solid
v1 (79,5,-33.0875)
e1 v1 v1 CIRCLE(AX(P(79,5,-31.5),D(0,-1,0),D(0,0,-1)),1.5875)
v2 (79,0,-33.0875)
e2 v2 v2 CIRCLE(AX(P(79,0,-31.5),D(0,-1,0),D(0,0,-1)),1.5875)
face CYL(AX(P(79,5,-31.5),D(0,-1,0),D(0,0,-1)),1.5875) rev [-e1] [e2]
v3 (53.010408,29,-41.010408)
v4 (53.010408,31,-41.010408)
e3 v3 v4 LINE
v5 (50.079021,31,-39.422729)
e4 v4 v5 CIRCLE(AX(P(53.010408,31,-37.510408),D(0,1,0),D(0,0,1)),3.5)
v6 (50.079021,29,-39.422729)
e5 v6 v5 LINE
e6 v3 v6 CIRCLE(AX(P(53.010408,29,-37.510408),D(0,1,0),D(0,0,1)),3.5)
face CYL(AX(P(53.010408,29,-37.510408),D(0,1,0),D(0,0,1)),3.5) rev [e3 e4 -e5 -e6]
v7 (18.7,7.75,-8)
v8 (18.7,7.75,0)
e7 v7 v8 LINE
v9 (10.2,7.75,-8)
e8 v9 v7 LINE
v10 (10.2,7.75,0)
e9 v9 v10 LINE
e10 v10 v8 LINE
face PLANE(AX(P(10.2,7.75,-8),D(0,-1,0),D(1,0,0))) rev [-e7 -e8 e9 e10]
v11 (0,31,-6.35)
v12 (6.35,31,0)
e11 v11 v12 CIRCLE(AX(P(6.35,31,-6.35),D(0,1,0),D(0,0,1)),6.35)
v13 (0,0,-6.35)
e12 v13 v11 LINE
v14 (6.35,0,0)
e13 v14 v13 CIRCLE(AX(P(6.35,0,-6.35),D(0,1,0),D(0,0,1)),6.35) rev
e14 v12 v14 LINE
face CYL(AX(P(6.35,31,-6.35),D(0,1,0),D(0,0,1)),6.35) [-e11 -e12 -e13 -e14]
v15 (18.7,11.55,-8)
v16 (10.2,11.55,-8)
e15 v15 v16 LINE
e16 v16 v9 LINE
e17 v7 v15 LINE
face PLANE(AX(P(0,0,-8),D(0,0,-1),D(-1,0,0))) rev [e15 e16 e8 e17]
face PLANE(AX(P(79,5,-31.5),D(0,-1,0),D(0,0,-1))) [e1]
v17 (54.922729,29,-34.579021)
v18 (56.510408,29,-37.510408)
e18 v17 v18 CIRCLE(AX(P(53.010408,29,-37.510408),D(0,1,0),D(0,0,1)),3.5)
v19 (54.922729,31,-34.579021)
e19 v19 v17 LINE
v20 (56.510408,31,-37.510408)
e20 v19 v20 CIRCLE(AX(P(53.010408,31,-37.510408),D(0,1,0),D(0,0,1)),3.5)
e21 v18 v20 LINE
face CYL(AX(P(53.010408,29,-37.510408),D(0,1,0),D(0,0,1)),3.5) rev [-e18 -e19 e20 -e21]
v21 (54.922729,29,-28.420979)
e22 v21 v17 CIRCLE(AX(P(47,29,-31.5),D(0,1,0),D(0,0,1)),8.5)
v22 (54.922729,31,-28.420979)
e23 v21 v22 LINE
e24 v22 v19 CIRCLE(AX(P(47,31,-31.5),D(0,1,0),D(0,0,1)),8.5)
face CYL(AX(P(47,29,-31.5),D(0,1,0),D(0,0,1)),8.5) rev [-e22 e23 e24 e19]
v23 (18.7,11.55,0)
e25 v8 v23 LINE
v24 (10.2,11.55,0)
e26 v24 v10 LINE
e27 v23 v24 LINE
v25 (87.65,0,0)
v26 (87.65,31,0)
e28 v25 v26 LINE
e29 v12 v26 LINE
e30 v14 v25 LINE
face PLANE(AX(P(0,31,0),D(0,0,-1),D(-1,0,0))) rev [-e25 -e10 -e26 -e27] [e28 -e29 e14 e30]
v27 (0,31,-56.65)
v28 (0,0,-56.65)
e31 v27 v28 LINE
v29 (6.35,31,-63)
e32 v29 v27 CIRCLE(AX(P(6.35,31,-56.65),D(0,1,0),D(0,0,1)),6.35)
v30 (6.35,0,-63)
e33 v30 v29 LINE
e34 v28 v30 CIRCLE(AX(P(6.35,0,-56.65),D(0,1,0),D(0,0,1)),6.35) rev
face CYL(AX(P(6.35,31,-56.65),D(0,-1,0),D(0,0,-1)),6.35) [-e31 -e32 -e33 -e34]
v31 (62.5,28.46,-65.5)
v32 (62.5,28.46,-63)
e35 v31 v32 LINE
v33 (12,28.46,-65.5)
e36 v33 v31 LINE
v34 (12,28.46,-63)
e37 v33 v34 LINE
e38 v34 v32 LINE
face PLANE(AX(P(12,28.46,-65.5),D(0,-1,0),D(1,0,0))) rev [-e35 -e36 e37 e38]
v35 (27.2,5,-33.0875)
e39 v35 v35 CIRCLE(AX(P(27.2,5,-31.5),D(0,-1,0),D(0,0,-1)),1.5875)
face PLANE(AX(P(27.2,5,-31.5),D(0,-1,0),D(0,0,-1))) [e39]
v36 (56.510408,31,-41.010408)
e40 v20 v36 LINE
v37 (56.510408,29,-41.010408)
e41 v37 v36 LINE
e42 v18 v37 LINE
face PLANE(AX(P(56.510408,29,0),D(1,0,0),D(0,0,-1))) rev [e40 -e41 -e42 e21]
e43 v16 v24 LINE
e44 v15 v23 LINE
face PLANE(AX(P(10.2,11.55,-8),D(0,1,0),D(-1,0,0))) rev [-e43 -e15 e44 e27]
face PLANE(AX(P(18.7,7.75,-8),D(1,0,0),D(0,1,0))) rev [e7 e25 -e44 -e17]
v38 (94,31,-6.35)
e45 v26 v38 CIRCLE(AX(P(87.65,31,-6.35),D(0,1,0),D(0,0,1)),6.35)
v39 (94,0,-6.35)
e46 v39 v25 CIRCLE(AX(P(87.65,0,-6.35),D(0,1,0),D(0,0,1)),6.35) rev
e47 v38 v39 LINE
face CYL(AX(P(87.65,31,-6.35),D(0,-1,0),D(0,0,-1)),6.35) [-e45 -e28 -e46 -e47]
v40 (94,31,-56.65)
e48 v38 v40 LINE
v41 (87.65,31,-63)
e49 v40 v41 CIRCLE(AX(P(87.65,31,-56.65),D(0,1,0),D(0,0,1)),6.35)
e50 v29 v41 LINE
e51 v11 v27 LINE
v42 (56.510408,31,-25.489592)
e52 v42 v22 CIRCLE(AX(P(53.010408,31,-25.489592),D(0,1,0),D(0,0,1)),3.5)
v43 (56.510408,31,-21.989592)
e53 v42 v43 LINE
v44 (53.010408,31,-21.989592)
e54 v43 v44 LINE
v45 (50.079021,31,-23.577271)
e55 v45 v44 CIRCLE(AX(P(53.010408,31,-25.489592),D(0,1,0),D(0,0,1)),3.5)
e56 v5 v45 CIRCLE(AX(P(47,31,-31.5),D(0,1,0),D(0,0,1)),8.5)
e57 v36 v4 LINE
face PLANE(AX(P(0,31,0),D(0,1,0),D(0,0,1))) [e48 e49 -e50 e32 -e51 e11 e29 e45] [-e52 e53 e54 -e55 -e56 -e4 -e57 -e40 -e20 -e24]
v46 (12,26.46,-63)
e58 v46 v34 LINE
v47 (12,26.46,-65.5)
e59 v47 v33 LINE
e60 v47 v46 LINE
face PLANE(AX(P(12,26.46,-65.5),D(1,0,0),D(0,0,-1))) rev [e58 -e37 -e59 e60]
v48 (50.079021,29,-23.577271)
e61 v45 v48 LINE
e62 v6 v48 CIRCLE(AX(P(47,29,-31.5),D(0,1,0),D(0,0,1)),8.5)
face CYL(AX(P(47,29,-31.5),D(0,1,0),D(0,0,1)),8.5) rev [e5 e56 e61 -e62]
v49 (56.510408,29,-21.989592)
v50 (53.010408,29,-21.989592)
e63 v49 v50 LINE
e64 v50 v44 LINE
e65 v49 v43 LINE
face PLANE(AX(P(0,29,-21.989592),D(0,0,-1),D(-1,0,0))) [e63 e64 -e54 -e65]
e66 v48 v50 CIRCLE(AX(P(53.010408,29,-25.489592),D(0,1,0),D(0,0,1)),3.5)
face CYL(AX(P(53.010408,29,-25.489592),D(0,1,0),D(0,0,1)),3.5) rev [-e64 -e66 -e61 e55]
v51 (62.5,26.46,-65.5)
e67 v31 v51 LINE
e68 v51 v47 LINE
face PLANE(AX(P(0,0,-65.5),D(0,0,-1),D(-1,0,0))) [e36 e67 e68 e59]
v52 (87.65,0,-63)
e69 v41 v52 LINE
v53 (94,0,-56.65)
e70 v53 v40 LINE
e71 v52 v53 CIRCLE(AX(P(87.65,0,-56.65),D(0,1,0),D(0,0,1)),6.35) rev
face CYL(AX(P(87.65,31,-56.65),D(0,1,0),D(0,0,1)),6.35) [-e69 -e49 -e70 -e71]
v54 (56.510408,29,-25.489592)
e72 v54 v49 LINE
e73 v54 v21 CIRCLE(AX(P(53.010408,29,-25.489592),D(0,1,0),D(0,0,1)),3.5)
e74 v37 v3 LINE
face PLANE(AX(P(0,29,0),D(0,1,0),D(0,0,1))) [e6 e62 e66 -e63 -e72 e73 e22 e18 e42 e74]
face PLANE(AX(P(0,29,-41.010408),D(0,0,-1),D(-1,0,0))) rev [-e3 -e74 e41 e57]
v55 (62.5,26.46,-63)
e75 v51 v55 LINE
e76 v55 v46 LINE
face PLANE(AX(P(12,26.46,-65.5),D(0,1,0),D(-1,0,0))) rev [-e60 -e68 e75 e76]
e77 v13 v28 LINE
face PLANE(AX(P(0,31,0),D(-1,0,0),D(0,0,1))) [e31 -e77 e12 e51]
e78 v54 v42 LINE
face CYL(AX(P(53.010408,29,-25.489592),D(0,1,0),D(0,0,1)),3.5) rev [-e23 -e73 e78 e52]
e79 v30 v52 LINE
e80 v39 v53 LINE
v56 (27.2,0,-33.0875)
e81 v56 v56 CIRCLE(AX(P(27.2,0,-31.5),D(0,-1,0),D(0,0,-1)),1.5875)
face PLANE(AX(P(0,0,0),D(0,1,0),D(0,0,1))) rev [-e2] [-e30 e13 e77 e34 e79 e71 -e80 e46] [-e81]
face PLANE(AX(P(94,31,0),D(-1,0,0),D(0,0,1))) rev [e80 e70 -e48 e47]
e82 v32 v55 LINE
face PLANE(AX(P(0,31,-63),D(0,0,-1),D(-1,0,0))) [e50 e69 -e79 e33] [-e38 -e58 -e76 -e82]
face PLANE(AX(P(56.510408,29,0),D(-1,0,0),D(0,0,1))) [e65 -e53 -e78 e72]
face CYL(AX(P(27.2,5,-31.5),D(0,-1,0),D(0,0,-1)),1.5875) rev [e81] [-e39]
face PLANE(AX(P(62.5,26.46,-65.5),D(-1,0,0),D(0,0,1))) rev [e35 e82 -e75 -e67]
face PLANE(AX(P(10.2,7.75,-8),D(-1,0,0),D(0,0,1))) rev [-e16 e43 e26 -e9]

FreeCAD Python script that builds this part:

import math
import FreeCAD as App
import Part
import Sketcher


def edges_at(feature, points):
    """Names of the edges that pass closest to the given points."""
    edges = feature.Shape.Edges
    near = lambda p: min(range(len(edges)), key=lambda i: edges[i].distToShape(Part.Vertex(*p))[0])
    return sorted({f"Edge{near(p) + 1}" for p in points})


def add_polygon(sketch, points):
    """Adds a closed chain of lines whose ends are joined by coincident constraints."""
    first, n = sketch.GeometryCount, len(points)
    for a, b in zip(points, points[1:] + points[:1]):
        sketch.addGeometry(Part.LineSegment(App.Vector(*a, 0), App.Vector(*b, 0)), False)
    for i in range(n):
        sketch.addConstraint(Sketcher.Constraint("Coincident", first + i, 2, first + (i + 1) % n, 1))

doc = App.newDocument("Part")
body = doc.addObject("PartDesign::Body", "Body")

# Sketch on XZ plane
sketch1 = body.newObject("Sketcher::SketchObject", "Sketch")
sketch1.AttachmentSupport = (doc.getObject("XZ_Plane"), [""])
sketch1.MapMode = "FlatFace"
add_polygon(sketch1, [(0, -63), (0, 0), (94, 0), (94, -63)])  # lines 0-3
sketch1.addConstraint([
    Sketcher.Constraint("Vertical", 0),
    Sketcher.Constraint("Horizontal", 1),
    Sketcher.Constraint("Vertical", 2),
    Sketcher.Constraint("Horizontal", 3),
    Sketcher.Constraint("Coincident", 0, 2, -1, 1),
    Sketcher.Constraint("DistanceX", 1, 1, 1, 2, 94.0),
    Sketcher.Constraint("DistanceY", 0, 1, 0, 2, 63.0),
])
pad1 = body.newObject("PartDesign::Pad", "Pad")
pad1.Profile = sketch1
pad1.Length = 31
pad1.Reversed = True
doc.recompute()

fillet = body.newObject("PartDesign::Fillet", "Fillet")
fillet.Base = (pad1, edges_at(pad1, [
    (0, 15.5, 0),
    (0, 15.5, -63),
    (94, 15.5, -63),
    (94, 15.5, 0),
]))
fillet.Radius = 6.35

# Sketch on XY plane
sketch2 = body.newObject("Sketcher::SketchObject", "Sketch001")
sketch2.AttachmentSupport = (doc.getObject("XY_Plane"), [""])
sketch2.MapMode = "FlatFace"
sketch2.AttachmentOffset = App.Placement(App.Vector(0, 0, -63), App.Rotation())
add_polygon(sketch2, [(62.5, 28.46), (62.5, 26.46), (12, 26.46), (12, 28.46)])  # lines 0-3
sketch2.addConstraint([
    Sketcher.Constraint("Vertical", 0),
    Sketcher.Constraint("Horizontal", 1),
    Sketcher.Constraint("Vertical", 2),
    Sketcher.Constraint("Horizontal", 3),
    Sketcher.Constraint("DistanceY", 0, 2, 0, 1, 2.0),
    Sketcher.Constraint("DistanceX", 1, 2, 1, 1, 50.5),
    Sketcher.Constraint("DistanceX", -1, 1, 1, 2, 12.0),
    Sketcher.Constraint("DistanceY", -1, 1, 0, 2, 26.46),
])
pad2 = body.newObject("PartDesign::Pad", "Pad001")
pad2.Profile = sketch2
pad2.Length = 2.5
pad2.Reversed = True

# Sketch on XY plane
sketch3 = body.newObject("Sketcher::SketchObject", "Sketch002")
sketch3.AttachmentSupport = (doc.getObject("XY_Plane"), [""])
sketch3.MapMode = "FlatFace"
add_polygon(sketch3, [(10.2, 11.55), (10.2, 7.75), (18.7, 7.75), (18.7, 11.55)])  # lines 0-3
sketch3.addConstraint([
    Sketcher.Constraint("Vertical", 0),
    Sketcher.Constraint("Horizontal", 1),
    Sketcher.Constraint("Vertical", 2),
    Sketcher.Constraint("Horizontal", 3),
    Sketcher.Constraint("DistanceX", 1, 1, 1, 2, 8.5),
    Sketcher.Constraint("DistanceY", 0, 2, 0, 1, 3.8),
    Sketcher.Constraint("DistanceX", -1, 1, 0, 2, 10.2),
    Sketcher.Constraint("DistanceY", -1, 1, 0, 2, 7.75),
])
pocket1 = body.newObject("PartDesign::Pocket", "Pocket")
pocket1.Profile = sketch3
pocket1.Length = 8

# Sketch on XZ plane
sketch4 = body.newObject("Sketcher::SketchObject", "Sketch003")
sketch4.AttachmentSupport = (doc.getObject("XZ_Plane"), [""])
sketch4.MapMode = "FlatFace"
sketch4.AttachmentOffset = App.Placement(App.Vector(0, 0, -31), App.Rotation())
sketch4.addGeometry([
    Part.ArcOfCircle(Part.Circle(App.Vector(53.010408, -25.489592, 0), App.Vector(0, 0, 1), 3.5), math.radians(-56.881156), math.radians(0)),  # 0
    Part.ArcOfCircle(Part.Circle(App.Vector(47, -31.5, 0), App.Vector(0, 0, 1), 8.5), math.radians(-21.237688), math.radians(21.237688)),  # 1
    Part.ArcOfCircle(Part.Circle(App.Vector(53.010408, -37.510408, 0), App.Vector(0, 0, 1), 3.5), math.radians(0), math.radians(56.881156)),  # 2
    Part.LineSegment(App.Vector(56.510408, -37.510408, 0), App.Vector(56.510408, -41.010408, 0)),  # 3
    Part.LineSegment(App.Vector(56.510408, -41.010408, 0), App.Vector(53.010408, -41.010408, 0)),  # 4
    Part.ArcOfCircle(Part.Circle(App.Vector(53.010408, -37.510408, 0), App.Vector(0, 0, 1), 3.5), math.radians(-146.881156), math.radians(-90)),  # 5
    Part.ArcOfCircle(Part.Circle(App.Vector(47, -31.5, 0), App.Vector(0, 0, 1), 8.5), math.radians(68.762312), math.radians(291.237688)),  # 6
    Part.ArcOfCircle(Part.Circle(App.Vector(53.010408, -25.489592, 0), App.Vector(0, 0, 1), 3.5), math.radians(90), math.radians(146.881156)),  # 7
    Part.LineSegment(App.Vector(53.010408, -21.989592, 0), App.Vector(56.510408, -21.989592, 0)),  # 8
    Part.LineSegment(App.Vector(56.510408, -21.989592, 0), App.Vector(56.510408, -25.489592, 0)),  # 9
], False)
sketch4.addConstraint([
    Sketcher.Constraint("Coincident", 0, 1, 1, 2),
    Sketcher.Constraint("Coincident", 1, 1, 2, 2),
    Sketcher.Constraint("Tangent", 2, 1, 3, 1),
    Sketcher.Constraint("Coincident", 3, 2, 4, 1),
    Sketcher.Constraint("Tangent", 4, 2, 5, 2),
    Sketcher.Constraint("Coincident", 5, 1, 6, 2),
    Sketcher.Constraint("Coincident", 6, 1, 7, 2),
    Sketcher.Constraint("Tangent", 7, 1, 8, 1),
    Sketcher.Constraint("Coincident", 8, 2, 9, 1),
    Sketcher.Constraint("Tangent", 9, 2, 0, 2),
    Sketcher.Constraint("Vertical", 3),
    Sketcher.Constraint("Horizontal", 4),
    Sketcher.Constraint("Horizontal", 8),
    Sketcher.Constraint("Vertical", 9),
    Sketcher.Constraint("Coincident", 5, 3, 2, 3),
    Sketcher.Constraint("Coincident", 6, 3, 1, 3),
    Sketcher.Constraint("Coincident", 7, 3, 0, 3),
    Sketcher.Constraint("Equal", 0, 2),
    Sketcher.Constraint("Equal", 2, 5),
    Sketcher.Constraint("Equal", 1, 6),
    Sketcher.Constraint("Equal", 5, 7),
    Sketcher.Constraint("Vertical", 0, 3, 2, 3),
    Sketcher.Constraint("Vertical", 0, 1, 1, 1),
    Sketcher.Constraint("Radius", 0, 3.5),
    Sketcher.Constraint("Radius", 1, 8.5),
    Sketcher.Constraint("DistanceX", -1, 1, 1, 3, 47.0),
    Sketcher.Constraint("DistanceY", 1, 3, -1, 1, 31.5),
    Sketcher.Constraint("DistanceX", -1, 1, 0, 1, 54.922729),
    Sketcher.Constraint("DistanceX", -1, 1, 5, 1, 50.079021),
])
pocket2 = body.newObject("PartDesign::Pocket", "Pocket001")
pocket2.Profile = sketch4
pocket2.Length = 2
pocket2.Reversed = True

# Sketch on XZ plane
sketch5 = body.newObject("Sketcher::SketchObject", "Sketch004")
sketch5.AttachmentSupport = (doc.getObject("XZ_Plane"), [""])
sketch5.MapMode = "FlatFace"
sketch5.addGeometry([
    Part.Circle(App.Vector(27.2, -31.5, 0), App.Vector(0, 0, 1), 1.5875),
    Part.Circle(App.Vector(79, -31.5, 0), App.Vector(0, 0, 1), 1.5875),
], False)
sketch5.addConstraint([
    Sketcher.Constraint("Equal", 0, 1),
    Sketcher.Constraint("Horizontal", 0, 3, 1, 3),
    Sketcher.Constraint("Diameter", 0, 3.175),
    Sketcher.Constraint("DistanceX", -1, 1, 1, 3, 79.0),
    Sketcher.Constraint("DistanceX", -1, 1, 0, 3, 27.2),
    Sketcher.Constraint("DistanceY", 0, 3, -1, 1, 31.5),
])
pocket3 = body.newObject("PartDesign::Pocket", "Pocket002")
pocket3.Profile = sketch5
pocket3.Length = 5

doc.recompute()
